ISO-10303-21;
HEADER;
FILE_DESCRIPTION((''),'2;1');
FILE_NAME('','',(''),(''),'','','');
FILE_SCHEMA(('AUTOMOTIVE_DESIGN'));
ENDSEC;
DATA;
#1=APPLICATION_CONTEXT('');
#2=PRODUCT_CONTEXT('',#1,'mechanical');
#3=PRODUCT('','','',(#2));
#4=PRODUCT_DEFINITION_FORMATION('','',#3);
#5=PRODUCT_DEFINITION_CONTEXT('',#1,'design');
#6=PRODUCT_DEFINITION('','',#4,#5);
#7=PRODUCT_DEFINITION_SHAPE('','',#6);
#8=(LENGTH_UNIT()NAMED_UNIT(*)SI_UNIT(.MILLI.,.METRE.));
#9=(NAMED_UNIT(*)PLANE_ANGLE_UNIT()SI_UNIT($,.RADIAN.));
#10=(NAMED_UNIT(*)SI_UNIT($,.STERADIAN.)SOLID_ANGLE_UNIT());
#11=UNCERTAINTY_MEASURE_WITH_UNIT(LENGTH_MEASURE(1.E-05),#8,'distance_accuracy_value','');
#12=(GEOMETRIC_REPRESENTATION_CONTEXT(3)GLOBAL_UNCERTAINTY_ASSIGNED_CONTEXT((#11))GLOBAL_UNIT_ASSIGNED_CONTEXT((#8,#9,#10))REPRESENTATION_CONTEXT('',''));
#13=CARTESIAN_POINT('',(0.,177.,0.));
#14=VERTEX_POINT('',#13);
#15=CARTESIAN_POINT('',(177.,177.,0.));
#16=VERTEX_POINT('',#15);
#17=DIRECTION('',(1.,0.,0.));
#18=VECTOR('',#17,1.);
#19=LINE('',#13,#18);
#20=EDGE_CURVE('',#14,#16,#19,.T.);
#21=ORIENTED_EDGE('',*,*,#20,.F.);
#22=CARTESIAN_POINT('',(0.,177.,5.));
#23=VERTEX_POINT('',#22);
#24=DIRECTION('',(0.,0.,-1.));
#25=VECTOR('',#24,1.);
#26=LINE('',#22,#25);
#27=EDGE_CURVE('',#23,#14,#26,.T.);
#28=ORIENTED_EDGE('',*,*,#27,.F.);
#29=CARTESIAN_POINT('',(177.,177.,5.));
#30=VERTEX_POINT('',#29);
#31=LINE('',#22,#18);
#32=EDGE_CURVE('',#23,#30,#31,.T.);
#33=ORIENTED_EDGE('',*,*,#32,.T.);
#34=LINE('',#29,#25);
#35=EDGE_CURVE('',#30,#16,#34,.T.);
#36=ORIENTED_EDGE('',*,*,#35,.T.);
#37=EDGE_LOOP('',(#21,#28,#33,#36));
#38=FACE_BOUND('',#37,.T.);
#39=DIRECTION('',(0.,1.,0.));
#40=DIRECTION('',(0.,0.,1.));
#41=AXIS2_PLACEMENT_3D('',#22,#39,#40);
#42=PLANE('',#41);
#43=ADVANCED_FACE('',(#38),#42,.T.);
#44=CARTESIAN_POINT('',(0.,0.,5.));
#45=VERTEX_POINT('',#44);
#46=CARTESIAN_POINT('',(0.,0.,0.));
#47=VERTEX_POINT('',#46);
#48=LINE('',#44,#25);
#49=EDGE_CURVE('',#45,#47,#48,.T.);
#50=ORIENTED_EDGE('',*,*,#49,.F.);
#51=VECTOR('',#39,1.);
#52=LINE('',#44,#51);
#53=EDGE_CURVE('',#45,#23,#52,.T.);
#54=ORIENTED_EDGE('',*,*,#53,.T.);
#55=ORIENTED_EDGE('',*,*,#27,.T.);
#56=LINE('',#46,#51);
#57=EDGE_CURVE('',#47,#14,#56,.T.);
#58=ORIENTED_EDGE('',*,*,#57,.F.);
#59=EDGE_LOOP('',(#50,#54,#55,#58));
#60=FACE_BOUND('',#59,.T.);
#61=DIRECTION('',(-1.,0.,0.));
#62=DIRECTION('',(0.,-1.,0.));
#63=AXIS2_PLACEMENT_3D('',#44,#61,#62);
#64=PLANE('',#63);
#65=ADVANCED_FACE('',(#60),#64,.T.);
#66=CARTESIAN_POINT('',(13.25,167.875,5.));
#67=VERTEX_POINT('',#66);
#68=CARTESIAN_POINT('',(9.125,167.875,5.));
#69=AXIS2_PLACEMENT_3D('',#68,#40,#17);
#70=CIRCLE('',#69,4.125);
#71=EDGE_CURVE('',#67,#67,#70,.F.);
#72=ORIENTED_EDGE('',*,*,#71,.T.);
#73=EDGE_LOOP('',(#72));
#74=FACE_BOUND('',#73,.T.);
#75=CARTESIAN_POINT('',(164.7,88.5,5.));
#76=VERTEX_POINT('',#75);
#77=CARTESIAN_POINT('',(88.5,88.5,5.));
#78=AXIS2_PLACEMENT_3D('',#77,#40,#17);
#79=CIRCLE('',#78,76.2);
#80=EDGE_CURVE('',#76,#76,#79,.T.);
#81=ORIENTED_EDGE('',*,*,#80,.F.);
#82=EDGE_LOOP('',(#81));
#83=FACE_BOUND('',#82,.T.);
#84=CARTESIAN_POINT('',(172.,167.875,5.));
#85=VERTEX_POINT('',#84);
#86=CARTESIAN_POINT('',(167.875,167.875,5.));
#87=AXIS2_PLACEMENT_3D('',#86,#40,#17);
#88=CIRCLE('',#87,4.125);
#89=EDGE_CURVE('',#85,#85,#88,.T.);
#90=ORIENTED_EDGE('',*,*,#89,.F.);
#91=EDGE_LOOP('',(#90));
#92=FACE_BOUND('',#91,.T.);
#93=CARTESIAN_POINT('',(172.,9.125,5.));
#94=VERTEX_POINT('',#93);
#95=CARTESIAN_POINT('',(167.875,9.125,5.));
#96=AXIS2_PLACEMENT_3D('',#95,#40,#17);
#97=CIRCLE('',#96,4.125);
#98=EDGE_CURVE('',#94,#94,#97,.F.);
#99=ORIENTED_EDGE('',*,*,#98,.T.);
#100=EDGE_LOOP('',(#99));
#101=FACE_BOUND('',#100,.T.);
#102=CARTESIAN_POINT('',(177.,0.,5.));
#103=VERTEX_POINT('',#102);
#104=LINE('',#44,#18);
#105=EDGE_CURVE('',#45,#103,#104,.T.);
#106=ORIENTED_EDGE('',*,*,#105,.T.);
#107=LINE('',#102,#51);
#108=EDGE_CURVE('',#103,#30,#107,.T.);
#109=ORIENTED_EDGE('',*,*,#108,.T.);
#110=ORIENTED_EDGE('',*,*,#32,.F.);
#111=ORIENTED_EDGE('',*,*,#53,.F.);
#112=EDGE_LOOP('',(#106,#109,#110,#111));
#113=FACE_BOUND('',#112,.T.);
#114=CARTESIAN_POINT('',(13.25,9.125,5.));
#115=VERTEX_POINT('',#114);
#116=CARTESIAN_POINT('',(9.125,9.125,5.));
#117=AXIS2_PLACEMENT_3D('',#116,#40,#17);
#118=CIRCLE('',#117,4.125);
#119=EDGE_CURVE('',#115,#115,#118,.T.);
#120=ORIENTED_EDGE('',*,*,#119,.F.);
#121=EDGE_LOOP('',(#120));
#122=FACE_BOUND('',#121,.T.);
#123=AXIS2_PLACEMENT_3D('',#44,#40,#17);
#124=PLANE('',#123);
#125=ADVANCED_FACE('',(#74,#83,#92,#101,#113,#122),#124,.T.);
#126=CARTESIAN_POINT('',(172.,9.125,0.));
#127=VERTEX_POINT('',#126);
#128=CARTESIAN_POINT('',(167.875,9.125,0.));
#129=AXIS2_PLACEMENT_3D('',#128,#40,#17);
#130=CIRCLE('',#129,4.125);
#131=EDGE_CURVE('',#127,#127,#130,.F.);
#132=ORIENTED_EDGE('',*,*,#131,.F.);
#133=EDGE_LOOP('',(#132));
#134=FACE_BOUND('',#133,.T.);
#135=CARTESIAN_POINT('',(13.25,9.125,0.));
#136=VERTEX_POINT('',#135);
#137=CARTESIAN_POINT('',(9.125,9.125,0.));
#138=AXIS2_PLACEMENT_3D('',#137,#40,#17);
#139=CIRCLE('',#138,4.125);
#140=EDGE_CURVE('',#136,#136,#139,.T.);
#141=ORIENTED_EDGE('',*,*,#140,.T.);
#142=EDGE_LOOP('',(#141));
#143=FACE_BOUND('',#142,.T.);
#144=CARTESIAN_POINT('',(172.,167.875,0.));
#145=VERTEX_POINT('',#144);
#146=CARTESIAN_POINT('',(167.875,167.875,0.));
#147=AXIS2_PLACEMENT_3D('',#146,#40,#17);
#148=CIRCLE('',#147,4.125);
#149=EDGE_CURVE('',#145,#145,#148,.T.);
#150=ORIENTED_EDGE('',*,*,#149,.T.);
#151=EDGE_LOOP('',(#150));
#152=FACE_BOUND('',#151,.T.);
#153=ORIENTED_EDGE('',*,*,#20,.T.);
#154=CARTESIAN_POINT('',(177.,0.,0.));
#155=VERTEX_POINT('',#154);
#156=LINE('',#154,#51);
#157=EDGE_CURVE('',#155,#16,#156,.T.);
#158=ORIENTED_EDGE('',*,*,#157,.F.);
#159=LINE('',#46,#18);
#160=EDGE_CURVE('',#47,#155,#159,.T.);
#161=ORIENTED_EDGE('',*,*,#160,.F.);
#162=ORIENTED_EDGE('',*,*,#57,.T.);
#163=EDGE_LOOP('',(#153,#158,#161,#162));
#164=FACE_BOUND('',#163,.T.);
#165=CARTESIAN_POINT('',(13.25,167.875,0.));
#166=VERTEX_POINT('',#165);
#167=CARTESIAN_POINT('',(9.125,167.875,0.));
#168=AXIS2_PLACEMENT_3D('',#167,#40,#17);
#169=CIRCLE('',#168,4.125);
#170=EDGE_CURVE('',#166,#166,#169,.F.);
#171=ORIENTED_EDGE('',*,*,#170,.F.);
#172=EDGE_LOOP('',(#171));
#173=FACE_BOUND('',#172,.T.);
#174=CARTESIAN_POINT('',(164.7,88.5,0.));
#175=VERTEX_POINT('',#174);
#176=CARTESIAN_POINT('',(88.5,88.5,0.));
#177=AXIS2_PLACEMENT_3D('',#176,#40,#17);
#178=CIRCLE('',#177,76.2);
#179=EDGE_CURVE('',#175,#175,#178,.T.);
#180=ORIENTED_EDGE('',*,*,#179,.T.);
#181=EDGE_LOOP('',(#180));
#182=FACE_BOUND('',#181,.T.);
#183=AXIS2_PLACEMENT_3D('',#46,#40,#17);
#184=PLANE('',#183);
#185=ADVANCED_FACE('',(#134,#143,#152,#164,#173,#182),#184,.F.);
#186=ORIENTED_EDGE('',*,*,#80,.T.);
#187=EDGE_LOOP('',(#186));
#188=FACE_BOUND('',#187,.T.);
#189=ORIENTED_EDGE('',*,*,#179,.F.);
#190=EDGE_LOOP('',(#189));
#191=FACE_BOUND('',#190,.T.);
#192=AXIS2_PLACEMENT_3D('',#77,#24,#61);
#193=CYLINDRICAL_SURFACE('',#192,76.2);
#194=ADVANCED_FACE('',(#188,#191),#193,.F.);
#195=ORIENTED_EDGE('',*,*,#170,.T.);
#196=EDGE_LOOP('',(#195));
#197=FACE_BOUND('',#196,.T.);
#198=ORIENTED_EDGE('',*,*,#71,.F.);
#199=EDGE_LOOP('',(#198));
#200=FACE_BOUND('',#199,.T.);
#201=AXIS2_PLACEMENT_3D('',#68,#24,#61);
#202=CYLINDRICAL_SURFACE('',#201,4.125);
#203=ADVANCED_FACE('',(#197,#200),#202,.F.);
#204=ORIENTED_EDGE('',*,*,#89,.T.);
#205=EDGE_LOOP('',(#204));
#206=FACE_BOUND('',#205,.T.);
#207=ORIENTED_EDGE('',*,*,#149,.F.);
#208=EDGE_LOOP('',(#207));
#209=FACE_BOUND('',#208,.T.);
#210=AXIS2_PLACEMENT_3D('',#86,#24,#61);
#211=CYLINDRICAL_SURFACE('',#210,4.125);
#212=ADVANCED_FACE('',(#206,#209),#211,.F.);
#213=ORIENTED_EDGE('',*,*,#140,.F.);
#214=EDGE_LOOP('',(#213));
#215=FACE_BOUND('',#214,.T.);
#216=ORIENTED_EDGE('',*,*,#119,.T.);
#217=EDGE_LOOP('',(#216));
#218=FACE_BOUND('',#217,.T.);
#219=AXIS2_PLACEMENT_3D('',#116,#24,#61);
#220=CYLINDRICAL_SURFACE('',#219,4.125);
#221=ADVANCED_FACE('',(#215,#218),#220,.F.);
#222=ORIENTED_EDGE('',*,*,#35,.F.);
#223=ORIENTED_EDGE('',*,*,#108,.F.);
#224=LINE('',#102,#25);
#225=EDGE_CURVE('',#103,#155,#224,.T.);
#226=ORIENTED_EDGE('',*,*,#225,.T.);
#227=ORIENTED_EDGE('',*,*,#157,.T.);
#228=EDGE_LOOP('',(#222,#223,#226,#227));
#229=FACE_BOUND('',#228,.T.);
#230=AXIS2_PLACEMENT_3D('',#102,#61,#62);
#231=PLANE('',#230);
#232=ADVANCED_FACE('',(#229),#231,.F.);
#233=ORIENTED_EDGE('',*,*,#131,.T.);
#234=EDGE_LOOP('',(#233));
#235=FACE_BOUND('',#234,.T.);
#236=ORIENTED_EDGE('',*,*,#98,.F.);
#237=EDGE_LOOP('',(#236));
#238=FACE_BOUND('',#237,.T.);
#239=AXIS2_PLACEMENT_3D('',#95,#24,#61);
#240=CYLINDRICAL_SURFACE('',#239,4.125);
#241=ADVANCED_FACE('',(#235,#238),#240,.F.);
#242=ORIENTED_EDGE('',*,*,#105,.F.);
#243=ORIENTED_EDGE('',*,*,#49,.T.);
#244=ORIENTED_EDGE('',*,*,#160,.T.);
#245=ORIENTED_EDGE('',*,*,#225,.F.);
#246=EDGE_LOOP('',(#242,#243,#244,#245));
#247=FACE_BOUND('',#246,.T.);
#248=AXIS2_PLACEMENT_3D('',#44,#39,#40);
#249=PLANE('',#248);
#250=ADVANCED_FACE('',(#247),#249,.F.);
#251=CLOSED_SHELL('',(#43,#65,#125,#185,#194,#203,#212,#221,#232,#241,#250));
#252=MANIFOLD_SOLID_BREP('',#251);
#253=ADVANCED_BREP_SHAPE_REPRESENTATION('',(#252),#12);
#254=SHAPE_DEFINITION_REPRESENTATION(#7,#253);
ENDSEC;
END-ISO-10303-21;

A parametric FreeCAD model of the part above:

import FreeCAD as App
import Part
import Sketcher
from FreeCAD import Vector
Q = App.Units.Quantity

doc = App.newDocument("Part")
body = doc.addObject("PartDesign::Body", "Body")

sketch1 = body.newObject("Sketcher::SketchObject", "Sketch")
sketch1.AttachmentSupport = (doc.getObject("XY_Plane"), [""])
sketch1.MapMode = "FlatFace"
sketch1.addGeometry(Part.LineSegment(Vector(0, 177, 0), Vector(0, 0, 0)), False)
sketch1.addGeometry(Part.LineSegment(Vector(0, 0, 0), Vector(177, 0, 0)), False)
sketch1.addGeometry(Part.LineSegment(Vector(177, 0, 0), Vector(177, 177, 0)), False)
sketch1.addGeometry(Part.LineSegment(Vector(177, 177, 0), Vector(0, 177, 0)), False)
sketch1.addGeometry(Part.Circle(Vector(88.5, 88.5, 0), Vector(0, 0, 1), 76.2), False)
sketch1.addGeometry(Part.Circle(Vector(9.125, 9.125, 0), Vector(0, 0, 1), 4.125), False)
sketch1.addGeometry(Part.Circle(Vector(167.875, 9.125, 0), Vector(0, 0, 1), 4.125), False)
sketch1.addGeometry(Part.Circle(Vector(9.125, 167.875, 0), Vector(0, 0, 1), 4.125), False)
sketch1.addGeometry(Part.Circle(Vector(167.875, 167.875, 0), Vector(0, 0, 1), 4.125), False)
sketch1.addConstraint(Sketcher.Constraint("Coincident", 0, 2, 1, 1))
sketch1.addConstraint(Sketcher.Constraint("Coincident", 1, 2, 2, 1))
sketch1.addConstraint(Sketcher.Constraint("Coincident", 2, 2, 3, 1))
sketch1.addConstraint(Sketcher.Constraint("Coincident", 3, 2, 0, 1))
sketch1.addConstraint(Sketcher.Constraint("Vertical", 0))
sketch1.addConstraint(Sketcher.Constraint("Horizontal", 1))
sketch1.addConstraint(Sketcher.Constraint("Vertical", 2))
sketch1.addConstraint(Sketcher.Constraint("Horizontal", 3))
sketch1.addConstraint(Sketcher.Constraint("Coincident", 0, 2, -1, 1))
sketch1.addConstraint(Sketcher.Constraint("Equal", 5, 6))
sketch1.addConstraint(Sketcher.Constraint("Equal", 6, 7))
sketch1.addConstraint(Sketcher.Constraint("Equal", 7, 8))
sketch1.addConstraint(Sketcher.Constraint("Horizontal", 5, 3, 6, 3))
sketch1.addConstraint(Sketcher.Constraint("Horizontal", 7, 3, 8, 3))
sketch1.addConstraint(Sketcher.Constraint("Vertical", 5, 3, 7, 3))
sketch1.addConstraint(Sketcher.Constraint("Vertical", 6, 3, 8, 3))
sketch1.addConstraint(Sketcher.Constraint("Equal", 3, 0))
sketch1.addConstraint(Sketcher.Constraint("Diameter", 4, Q("152.4 mm")))
sketch1.addConstraint(Sketcher.Constraint("Diameter", 5, Q("8.25 mm")))
sketch1.addConstraint(Sketcher.Constraint("DistanceX", 1, 1, 1, 2, Q("177 mm")))
sketch1.addConstraint(Sketcher.Constraint("DistanceX", -1, 1, 4, 3, Q("88.5 mm")))
sketch1.addConstraint(Sketcher.Constraint("DistanceY", -1, 1, 4, 3, Q("88.5 mm")))
sketch1.addConstraint(Sketcher.Constraint("DistanceX", 5, 3, 6, 3, Q("158.75 mm")))
sketch1.addConstraint(Sketcher.Constraint("DistanceY", 5, 3, 7, 3, Q("158.75 mm")))
sketch1.addConstraint(Sketcher.Constraint("DistanceX", -1, 1, 5, 3, Q("9.125 mm")))
sketch1.addConstraint(Sketcher.Constraint("DistanceY", -1, 1, 5, 3, Q("9.125 mm")))
pad1 = body.newObject("PartDesign::Pad", "Pad")
pad1.Profile = sketch1
pad1.Length = 5

doc.recompute()
